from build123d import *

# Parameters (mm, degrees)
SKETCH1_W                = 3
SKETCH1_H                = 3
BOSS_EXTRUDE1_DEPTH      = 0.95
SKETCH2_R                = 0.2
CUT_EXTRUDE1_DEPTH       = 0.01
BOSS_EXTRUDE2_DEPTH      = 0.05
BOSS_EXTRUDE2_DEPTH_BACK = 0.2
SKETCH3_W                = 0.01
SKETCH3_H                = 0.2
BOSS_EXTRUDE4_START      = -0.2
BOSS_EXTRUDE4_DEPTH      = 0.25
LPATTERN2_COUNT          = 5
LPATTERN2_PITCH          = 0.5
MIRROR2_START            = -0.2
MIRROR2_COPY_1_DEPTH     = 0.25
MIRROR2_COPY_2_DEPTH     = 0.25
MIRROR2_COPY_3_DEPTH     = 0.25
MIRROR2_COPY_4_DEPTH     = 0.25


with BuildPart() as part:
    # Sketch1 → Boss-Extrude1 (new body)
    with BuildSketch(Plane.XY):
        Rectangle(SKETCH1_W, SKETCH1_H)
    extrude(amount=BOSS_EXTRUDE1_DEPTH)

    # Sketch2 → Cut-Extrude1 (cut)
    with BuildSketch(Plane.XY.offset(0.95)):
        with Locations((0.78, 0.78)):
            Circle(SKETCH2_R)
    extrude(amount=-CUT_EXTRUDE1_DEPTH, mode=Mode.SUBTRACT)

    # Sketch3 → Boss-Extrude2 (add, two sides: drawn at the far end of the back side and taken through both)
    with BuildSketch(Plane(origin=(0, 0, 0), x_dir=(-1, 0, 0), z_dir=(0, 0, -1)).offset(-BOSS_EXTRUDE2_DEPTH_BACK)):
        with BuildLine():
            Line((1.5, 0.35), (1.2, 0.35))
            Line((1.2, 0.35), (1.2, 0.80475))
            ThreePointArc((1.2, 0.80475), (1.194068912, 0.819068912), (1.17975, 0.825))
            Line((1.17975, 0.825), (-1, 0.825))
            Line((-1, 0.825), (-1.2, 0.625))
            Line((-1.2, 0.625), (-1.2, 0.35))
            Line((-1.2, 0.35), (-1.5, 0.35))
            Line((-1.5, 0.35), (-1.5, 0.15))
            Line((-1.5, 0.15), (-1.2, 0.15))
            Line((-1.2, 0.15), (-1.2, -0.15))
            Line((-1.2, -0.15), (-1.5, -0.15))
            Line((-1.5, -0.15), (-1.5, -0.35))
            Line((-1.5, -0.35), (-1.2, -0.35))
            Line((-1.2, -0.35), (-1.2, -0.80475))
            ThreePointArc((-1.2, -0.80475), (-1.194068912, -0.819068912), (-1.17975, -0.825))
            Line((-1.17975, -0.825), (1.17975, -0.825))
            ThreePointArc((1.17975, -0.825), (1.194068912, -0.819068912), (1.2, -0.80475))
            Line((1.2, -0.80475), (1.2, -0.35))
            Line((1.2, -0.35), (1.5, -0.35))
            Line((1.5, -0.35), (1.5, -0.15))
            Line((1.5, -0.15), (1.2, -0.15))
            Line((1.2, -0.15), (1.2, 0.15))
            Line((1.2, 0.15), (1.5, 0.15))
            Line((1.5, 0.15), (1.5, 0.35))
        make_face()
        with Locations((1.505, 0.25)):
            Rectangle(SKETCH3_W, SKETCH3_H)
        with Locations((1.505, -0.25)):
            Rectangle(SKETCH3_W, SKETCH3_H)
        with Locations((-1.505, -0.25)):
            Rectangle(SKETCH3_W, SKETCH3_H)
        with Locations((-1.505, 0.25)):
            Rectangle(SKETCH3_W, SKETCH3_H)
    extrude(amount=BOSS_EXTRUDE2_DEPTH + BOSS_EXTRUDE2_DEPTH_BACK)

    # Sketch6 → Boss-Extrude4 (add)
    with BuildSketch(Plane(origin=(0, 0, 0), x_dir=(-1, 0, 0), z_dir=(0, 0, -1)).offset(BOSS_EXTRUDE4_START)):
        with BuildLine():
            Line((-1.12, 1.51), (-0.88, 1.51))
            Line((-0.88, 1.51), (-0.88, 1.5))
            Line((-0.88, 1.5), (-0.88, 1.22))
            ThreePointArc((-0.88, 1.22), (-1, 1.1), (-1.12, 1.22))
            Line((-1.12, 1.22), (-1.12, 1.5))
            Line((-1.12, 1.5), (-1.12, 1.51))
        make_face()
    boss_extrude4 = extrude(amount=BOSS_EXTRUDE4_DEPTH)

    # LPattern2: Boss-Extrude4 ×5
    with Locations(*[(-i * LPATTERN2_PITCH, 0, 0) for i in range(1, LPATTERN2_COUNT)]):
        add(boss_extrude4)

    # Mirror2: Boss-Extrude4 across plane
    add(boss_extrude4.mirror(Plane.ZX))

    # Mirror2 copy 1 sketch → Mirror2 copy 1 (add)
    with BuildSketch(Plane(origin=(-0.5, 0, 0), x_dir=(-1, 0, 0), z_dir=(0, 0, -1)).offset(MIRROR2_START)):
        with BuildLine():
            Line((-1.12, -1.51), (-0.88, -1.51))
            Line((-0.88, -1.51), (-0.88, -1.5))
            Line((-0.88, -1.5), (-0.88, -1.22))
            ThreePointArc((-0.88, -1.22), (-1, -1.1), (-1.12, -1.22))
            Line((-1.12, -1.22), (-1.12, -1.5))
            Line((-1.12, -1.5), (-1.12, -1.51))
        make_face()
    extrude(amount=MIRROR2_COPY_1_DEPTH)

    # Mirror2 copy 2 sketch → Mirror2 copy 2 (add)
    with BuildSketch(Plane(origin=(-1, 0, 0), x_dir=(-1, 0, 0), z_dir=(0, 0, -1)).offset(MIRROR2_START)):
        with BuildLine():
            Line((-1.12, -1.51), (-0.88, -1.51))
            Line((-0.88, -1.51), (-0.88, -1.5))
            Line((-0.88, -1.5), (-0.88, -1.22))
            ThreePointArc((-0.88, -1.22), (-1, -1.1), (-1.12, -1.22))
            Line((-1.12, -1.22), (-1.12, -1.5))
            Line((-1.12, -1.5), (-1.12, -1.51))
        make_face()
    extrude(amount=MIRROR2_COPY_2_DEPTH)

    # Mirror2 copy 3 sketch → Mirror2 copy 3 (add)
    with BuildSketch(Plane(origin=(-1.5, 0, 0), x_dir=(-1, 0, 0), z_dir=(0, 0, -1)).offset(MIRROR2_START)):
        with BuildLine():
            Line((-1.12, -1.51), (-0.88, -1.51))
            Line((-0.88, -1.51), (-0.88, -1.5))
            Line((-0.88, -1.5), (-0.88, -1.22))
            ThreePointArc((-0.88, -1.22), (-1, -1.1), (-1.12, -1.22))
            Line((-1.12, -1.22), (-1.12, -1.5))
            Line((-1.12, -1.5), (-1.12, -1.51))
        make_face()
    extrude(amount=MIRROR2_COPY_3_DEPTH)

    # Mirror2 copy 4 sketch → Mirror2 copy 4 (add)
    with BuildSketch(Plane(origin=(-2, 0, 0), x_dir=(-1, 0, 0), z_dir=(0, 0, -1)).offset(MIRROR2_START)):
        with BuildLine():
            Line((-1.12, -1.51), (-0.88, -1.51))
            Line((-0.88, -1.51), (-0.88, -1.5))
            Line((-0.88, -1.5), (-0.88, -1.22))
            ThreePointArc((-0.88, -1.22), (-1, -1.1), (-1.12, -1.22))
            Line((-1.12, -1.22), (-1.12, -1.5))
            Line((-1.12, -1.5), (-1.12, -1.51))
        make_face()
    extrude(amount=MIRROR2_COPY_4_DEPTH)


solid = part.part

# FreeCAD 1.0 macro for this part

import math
import FreeCAD as App
import Part
import Sketcher
from FreeCAD import Vector
Q = App.Units.Quantity


def add_polygon(sketch, points):
    """Adds a closed chain of lines whose ends are joined by coincident constraints."""
    first, n = sketch.GeometryCount, len(points)
    for a, b in zip(points, points[1:] + points[:1]):
        sketch.addGeometry(Part.LineSegment(App.Vector(*a, 0), App.Vector(*b, 0)), False)
    for i in range(n):
        sketch.addConstraint(Sketcher.Constraint("Coincident", first + i, 2, first + (i + 1) % n, 1))

doc = App.newDocument("Part")
body = doc.addObject("PartDesign::Body", "Body")

# Sketch on XY plane
sketch1 = doc.addObject("Sketcher::SketchObject", "Sketch")
body.addObject(sketch1)
sketch1.AttachmentSupport = (doc.XY_Plane, [""])
sketch1.MapMode = "FlatFace"
add_polygon(sketch1, [(-1.5, 1.5), (-1.5, -1.5), (1.5, -1.5), (1.5, 1.5)])  # lines 0-3
sketch1.addConstraint([
    Sketcher.Constraint("Vertical", 0),
    Sketcher.Constraint("Horizontal", 1),
    Sketcher.Constraint("Vertical", 2),
    Sketcher.Constraint("Horizontal", 3),
    Sketcher.Constraint("Symmetric", 0, 2, 2, 2, -1, 1),
    Sketcher.Constraint("Equal", 3, 0),
    Sketcher.Constraint("DistanceX", 1, 1, 1, 2, Q("3 mm")),
])
pad1 = doc.addObject("PartDesign::Pad", "Pad")
body.addObject(pad1)
pad1.Profile = sketch1
pad1.Length = 0.95

# Sketch on XY plane
sketch2 = doc.addObject("Sketcher::SketchObject", "Sketch001")
body.addObject(sketch2)
sketch2.AttachmentSupport = (doc.XY_Plane, [""])
sketch2.MapMode = "FlatFace"
sketch2.AttachmentOffset = App.Placement(Vector(0, 0, 0.95), App.Rotation())
sketch2.addGeometry(Part.Circle(Vector(0.78, 0.78, 0), Vector(0, 0, 1), 0.2), False)
sketch2.addConstraint([
    Sketcher.Constraint("Diameter", 0, Q("0.4 mm")),
    Sketcher.Constraint("DistanceX", -1, 1, 0, 3, Q("0.78 mm")),
    Sketcher.Constraint("DistanceY", -1, 1, 0, 3, Q("0.78 mm")),
])
pocket1 = doc.addObject("PartDesign::Pocket", "Pocket")
body.addObject(pocket1)
pocket1.Profile = sketch2
pocket1.Length = 0.01

# Sketch on XY plane
sketch3 = doc.addObject("Sketcher::SketchObject", "Sketch002")
body.addObject(sketch3)
sketch3.AttachmentSupport = (doc.XY_Plane, [""])
sketch3.MapMode = "FlatFace"
sketch3.addGeometry([
    Part.LineSegment(Vector(-1.2, 0.35, 0), Vector(-1.2, 0.805, 0)),  # 0
    Part.ArcOfCircle(Part.Circle(Vector(-1.18, 0.805, 0), Vector(0, 0, 1), 0.02), math.radians(90), math.radians(180)),  # 1
    Part.LineSegment(Vector(-1.18, 0.825, 0), Vector(1, 0.825, 0)),  # 2
    Part.LineSegment(Vector(1, 0.825, 0), Vector(1.2, 0.625, 0)),  # 3
    Part.LineSegment(Vector(1.2, 0.625, 0), Vector(1.2, 0.35, 0)),  # 4
    Part.LineSegment(Vector(1.2, 0.35, 0), Vector(1.51, 0.35, 0)),  # 5
    Part.LineSegment(Vector(1.51, 0.35, 0), Vector(1.51, 0.15, 0)),  # 6
    Part.LineSegment(Vector(1.51, 0.15, 0), Vector(1.2, 0.15, 0)),  # 7
    Part.LineSegment(Vector(1.2, 0.15, 0), Vector(1.2, -0.15, 0)),  # 8
    Part.LineSegment(Vector(1.2, -0.15, 0), Vector(1.51, -0.15, 0)),  # 9
    Part.LineSegment(Vector(1.51, -0.15, 0), Vector(1.51, -0.35, 0)),  # 10
    Part.LineSegment(Vector(1.51, -0.35, 0), Vector(1.2, -0.35, 0)),  # 11
    Part.LineSegment(Vector(1.2, -0.35, 0), Vector(1.2, -0.805, 0)),  # 12
    Part.ArcOfCircle(Part.Circle(Vector(1.18, -0.805, 0), Vector(0, 0, 1), 0.02), math.radians(-90), math.radians(0)),  # 13
    Part.LineSegment(Vector(1.18, -0.825, 0), Vector(-1.18, -0.825, 0)),  # 14
    Part.ArcOfCircle(Part.Circle(Vector(-1.18, -0.805, 0), Vector(0, 0, 1), 0.02), math.radians(-180), math.radians(-90)),  # 15
    Part.LineSegment(Vector(-1.2, -0.805, 0), Vector(-1.2, -0.35, 0)),  # 16
    Part.LineSegment(Vector(-1.2, -0.35, 0), Vector(-1.51, -0.35, 0)),  # 17
    Part.LineSegment(Vector(-1.51, -0.35, 0), Vector(-1.51, -0.15, 0)),  # 18
    Part.LineSegment(Vector(-1.51, -0.15, 0), Vector(-1.2, -0.15, 0)),  # 19
    Part.LineSegment(Vector(-1.2, -0.15, 0), Vector(-1.2, 0.15, 0)),  # 20
    Part.LineSegment(Vector(-1.2, 0.15, 0), Vector(-1.51, 0.15, 0)),  # 21
    Part.LineSegment(Vector(-1.51, 0.15, 0), Vector(-1.51, 0.35, 0)),  # 22
    Part.LineSegment(Vector(-1.51, 0.35, 0), Vector(-1.2, 0.35, 0)),  # 23
], False)
sketch3.addConstraint([
    Sketcher.Constraint("Tangent", 0, 2, 1, 2),
    Sketcher.Constraint("Tangent", 1, 1, 2, 1),
    Sketcher.Constraint("Coincident", 2, 2, 3, 1),
    Sketcher.Constraint("Coincident", 3, 2, 4, 1),
    Sketcher.Constraint("Coincident", 4, 2, 5, 1),
    Sketcher.Constraint("Coincident", 5, 2, 6, 1),
    Sketcher.Constraint("Coincident", 6, 2, 7, 1),
    Sketcher.Constraint("Coincident", 7, 2, 8, 1),
    Sketcher.Constraint("Coincident", 8, 2, 9, 1),
    Sketcher.Constraint("Coincident", 9, 2, 10, 1),
    Sketcher.Constraint("Coincident", 10, 2, 11, 1),
    Sketcher.Constraint("Coincident", 11, 2, 12, 1),
    Sketcher.Constraint("Tangent", 12, 2, 13, 2),
    Sketcher.Constraint("Tangent", 13, 1, 14, 1),
    Sketcher.Constraint("Tangent", 14, 2, 15, 2),
    Sketcher.Constraint("Tangent", 15, 1, 16, 1),
    Sketcher.Constraint("Coincident", 16, 2, 17, 1),
    Sketcher.Constraint("Coincident", 17, 2, 18, 1),
    Sketcher.Constraint("Coincident", 18, 2, 19, 1),
    Sketcher.Constraint("Coincident", 19, 2, 20, 1),
    Sketcher.Constraint("Coincident", 20, 2, 21, 1),
    Sketcher.Constraint("Coincident", 21, 2, 22, 1),
    Sketcher.Constraint("Coincident", 22, 2, 23, 1),
    Sketcher.Constraint("Coincident", 23, 2, 0, 1),
    Sketcher.Constraint("Vertical", 0),
    Sketcher.Constraint("Horizontal", 2),
    Sketcher.Constraint("Vertical", 4),
    Sketcher.Constraint("Horizontal", 5),
    Sketcher.Constraint("Vertical", 6),
    Sketcher.Constraint("Horizontal", 7),
    Sketcher.Constraint("Vertical", 8),
    Sketcher.Constraint("Horizontal", 9),
    Sketcher.Constraint("Vertical", 10),
    Sketcher.Constraint("Horizontal", 11),
    Sketcher.Constraint("Vertical", 12),
    Sketcher.Constraint("Horizontal", 14),
    Sketcher.Constraint("Vertical", 16),
    Sketcher.Constraint("Horizontal", 17),
    Sketcher.Constraint("Vertical", 18),
    Sketcher.Constraint("Horizontal", 19),
    Sketcher.Constraint("Vertical", 20),
    Sketcher.Constraint("Horizontal", 21),
    Sketcher.Constraint("Vertical", 22),
    Sketcher.Constraint("Horizontal", 23),
    Sketcher.Constraint("Equal", 1, 13),
    Sketcher.Constraint("Equal", 13, 15),
    Sketcher.Constraint("Symmetric", 1, 3, 13, 3, -1, 1),
    Sketcher.Constraint("Symmetric", 4, 2, 16, 2, -1, 1),
    Sketcher.Constraint("Symmetric", 6, 2, 18, 2, -1, 1),
    Sketcher.Constraint("Symmetric", 8, 2, 20, 2, -1, 1),
    Sketcher.Constraint("Symmetric", 10, 2, 22, 2, -1, 1),
    Sketcher.Constraint("Symmetric", 11, 2, 16, 2, -2),
    Sketcher.Constraint("Symmetric", 9, 2, 18, 2, -2),
    Sketcher.Constraint("Vertical", 4, 2, 7, 2),
    Sketcher.Constraint("Angle", 3, Q("-45 deg")),
    Sketcher.Constraint("DistanceY", 6, 2, 6, 1, Q("0.2 mm")),
    Sketcher.Constraint("DistanceY", 8, 2, 8, 1, Q("0.3 mm")),
    Sketcher.Constraint("DistanceX", -1, 1, 2, 2, Q("1 mm")),
    Sketcher.Constraint("DistanceX", 5, 1, 5, 2, Q("0.31 mm")),
    Sketcher.Constraint("DistanceX", 0, 2, -1, 1, Q("1.2 mm")),
    Sketcher.Constraint("DistanceY", 4, 2, 4, 1, Q("0.275 mm")),
    Sketcher.Constraint("Radius", 1, Q("0.02025 mm")),
])
pad2 = doc.addObject("PartDesign::Pad", "Pad001")
body.addObject(pad2)
pad2.Profile = sketch3
pad2.Type = "TwoLengths"
pad2.Length = 0.05
pad2.Length2 = 0.2
pad2.Reversed = True

# Sketch on XY plane
sketch4 = doc.addObject("Sketcher::SketchObject", "Sketch003")
body.addObject(sketch4)
sketch4.AttachmentSupport = (doc.XY_Plane, [""])
sketch4.MapMode = "FlatFace"
sketch4.AttachmentOffset = App.Placement(Vector(0, 0, 0.2), App.Rotation())
sketch4.addGeometry([
    Part.LineSegment(Vector(0.88, 1.51, 0), Vector(1.12, 1.51, 0)),
    Part.LineSegment(Vector(1.12, 1.51, 0), Vector(1.12, 1.22, 0)),
    Part.ArcOfCircle(Part.Circle(Vector(1, 1.22, 0), Vector(0, 0, 1), 0.12), math.radians(180), math.radians(360)),
    Part.LineSegment(Vector(0.88, 1.22, 0), Vector(0.88, 1.51, 0)),
], False)
sketch4.addConstraint([
    Sketcher.Constraint("Coincident", 0, 2, 1, 1),
    Sketcher.Constraint("Tangent", 1, 2, 2, 2),
    Sketcher.Constraint("Tangent", 2, 1, 3, 1),
    Sketcher.Constraint("Coincident", 3, 2, 0, 1),
    Sketcher.Constraint("Horizontal", 0),
    Sketcher.Constraint("Vertical", 1),
    Sketcher.Constraint("Vertical", 3),
    Sketcher.Constraint("Radius", 2, Q("0.12 mm")),
    Sketcher.Constraint("DistanceX", -1, 1, 2, 3, Q("1 mm")),
    Sketcher.Constraint("DistanceY", 1, 2, 1, 1, Q("0.29 mm")),
    Sketcher.Constraint("DistanceY", -1, 1, 2, 3, Q("1.22 mm")),
])
pad3 = doc.addObject("PartDesign::Pad", "Pad002")
body.addObject(pad3)
pad3.Profile = sketch4
pad3.Length = 0.25
pad3.Reversed = True
doc.recompute()

linearpattern = doc.addObject("PartDesign::LinearPattern", "LinearPattern")
body.addObject(linearpattern)
linearpattern.Originals = [pad3]
linearpattern.Direction = (doc.X_Axis, [""])
linearpattern.Mode = "offset"
linearpattern.Offset = 0.5
linearpattern.Occurrences = 5
linearpattern.Reversed = True
body.Tip = linearpattern
doc.recompute()

mirrored = doc.addObject("PartDesign::Mirrored", "Mirrored")
body.addObject(mirrored)
mirrored.Originals = [pad3]
mirrored.MirrorPlane = (doc.XZ_Plane, [""])
body.Tip = mirrored

# Sketch on XY plane
sketch5 = doc.addObject("Sketcher::SketchObject", "Sketch004")
body.addObject(sketch5)
sketch5.AttachmentSupport = (doc.XY_Plane, [""])
sketch5.MapMode = "FlatFace"
sketch5.AttachmentOffset = App.Placement(Vector(0, 0, 0.2), App.Rotation())
sketch5.addGeometry([
    Part.LineSegment(Vector(0.62, -1.51, 0), Vector(0.38, -1.51, 0)),
    Part.LineSegment(Vector(0.38, -1.51, 0), Vector(0.38, -1.22, 0)),
    Part.ArcOfCircle(Part.Circle(Vector(0.5, -1.22, 0), Vector(0, 0, 1), 0.12), math.radians(0), math.radians(180)),
    Part.LineSegment(Vector(0.62, -1.22, 0), Vector(0.62, -1.51, 0)),
], False)
sketch5.addConstraint([
    Sketcher.Constraint("Coincident", 0, 2, 1, 1),
    Sketcher.Constraint("Tangent", 1, 2, 2, 2),
    Sketcher.Constraint("Tangent", 2, 1, 3, 1),
    Sketcher.Constraint("Coincident", 3, 2, 0, 1),
    Sketcher.Constraint("Horizontal", 0),
    Sketcher.Constraint("Vertical", 1),
    Sketcher.Constraint("Vertical", 3),
    Sketcher.Constraint("Radius", 2, Q("0.12 mm")),
    Sketcher.Constraint("DistanceY", 1, 1, 1, 2, Q("0.29 mm")),
    Sketcher.Constraint("DistanceX", -1, 1, 2, 3, Q("0.5 mm")),
    Sketcher.Constraint("DistanceY", 2, 3, -1, 1, Q("1.22 mm")),
])
pad4 = doc.addObject("PartDesign::Pad", "Pad003")
body.addObject(pad4)
pad4.Profile = sketch5
pad4.Length = 0.25
pad4.Reversed = True

# Sketch on XY plane
sketch6 = doc.addObject("Sketcher::SketchObject", "Sketch005")
body.addObject(sketch6)
sketch6.AttachmentSupport = (doc.XY_Plane, [""])
sketch6.MapMode = "FlatFace"
sketch6.AttachmentOffset = App.Placement(Vector(0, 0, 0.2), App.Rotation())
sketch6.addGeometry([
    Part.LineSegment(Vector(0.12, -1.51, 0), Vector(-0.12, -1.51, 0)),
    Part.LineSegment(Vector(-0.12, -1.51, 0), Vector(-0.12, -1.22, 0)),
    Part.ArcOfCircle(Part.Circle(Vector(0, -1.22, 0), Vector(0, 0, 1), 0.12), math.radians(0), math.radians(180)),
    Part.LineSegment(Vector(0.12, -1.22, 0), Vector(0.12, -1.51, 0)),
], False)
sketch6.addConstraint([
    Sketcher.Constraint("Coincident", 0, 2, 1, 1),
    Sketcher.Constraint("Tangent", 1, 2, 2, 2),
    Sketcher.Constraint("Tangent", 2, 1, 3, 1),
    Sketcher.Constraint("Coincident", 3, 2, 0, 1),
    Sketcher.Constraint("Horizontal", 0),
    Sketcher.Constraint("Vertical", 1),
    Sketcher.Constraint("Vertical", 3),
    Sketcher.Constraint("PointOnObject", 2, 3, -2),
    Sketcher.Constraint("Radius", 2, Q("0.12 mm")),
    Sketcher.Constraint("DistanceY", 1, 1, 1, 2, Q("0.29 mm")),
    Sketcher.Constraint("DistanceY", 2, 3, -1, 1, Q("1.22 mm")),
])
pad5 = doc.addObject("PartDesign::Pad", "Pad004")
body.addObject(pad5)
pad5.Profile = sketch6
pad5.Length = 0.25
pad5.Reversed = True

# Sketch on XY plane
sketch7 = doc.addObject("Sketcher::SketchObject", "Sketch006")
body.addObject(sketch7)
sketch7.AttachmentSupport = (doc.XY_Plane, [""])
sketch7.MapMode = "FlatFace"
sketch7.AttachmentOffset = App.Placement(Vector(0, 0, 0.2), App.Rotation())
sketch7.addGeometry([
    Part.LineSegment(Vector(-0.38, -1.51, 0), Vector(-0.62, -1.51, 0)),
    Part.LineSegment(Vector(-0.62, -1.51, 0), Vector(-0.62, -1.22, 0)),
    Part.ArcOfCircle(Part.Circle(Vector(-0.5, -1.22, 0), Vector(0, 0, 1), 0.12), math.radians(0), math.radians(180)),
    Part.LineSegment(Vector(-0.38, -1.22, 0), Vector(-0.38, -1.51, 0)),
], False)
sketch7.addConstraint([
    Sketcher.Constraint("Coincident", 0, 2, 1, 1),
    Sketcher.Constraint("Tangent", 1, 2, 2, 2),
    Sketcher.Constraint("Tangent", 2, 1, 3, 1),
    Sketcher.Constraint("Coincident", 3, 2, 0, 1),
    Sketcher.Constraint("Horizontal", 0),
    Sketcher.Constraint("Vertical", 1),
    Sketcher.Constraint("Vertical", 3),
    Sketcher.Constraint("Radius", 2, Q("0.12 mm")),
    Sketcher.Constraint("DistanceY", 1, 1, 1, 2, Q("0.29 mm")),
    Sketcher.Constraint("DistanceX", 2, 3, -1, 1, Q("0.5 mm")),
    Sketcher.Constraint("DistanceY", 2, 3, -1, 1, Q("1.22 mm")),
])
pad6 = doc.addObject("PartDesign::Pad", "Pad005")
body.addObject(pad6)
pad6.Profile = sketch7
pad6.Length = 0.25
pad6.Reversed = True

# Sketch on XY plane
sketch8 = doc.addObject("Sketcher::SketchObject", "Sketch007")
body.addObject(sketch8)
sketch8.AttachmentSupport = (doc.XY_Plane, [""])
sketch8.MapMode = "FlatFace"
sketch8.AttachmentOffset = App.Placement(Vector(0, 0, 0.2), App.Rotation())
sketch8.addGeometry([
    Part.LineSegment(Vector(-0.88, -1.51, 0), Vector(-1.12, -1.51, 0)),
    Part.LineSegment(Vector(-1.12, -1.51, 0), Vector(-1.12, -1.22, 0)),
    Part.ArcOfCircle(Part.Circle(Vector(-1, -1.22, 0), Vector(0, 0, 1), 0.12), math.radians(0), math.radians(180)),
    Part.LineSegment(Vector(-0.88, -1.22, 0), Vector(-0.88, -1.51, 0)),
], False)
sketch8.addConstraint([
    Sketcher.Constraint("Coincident", 0, 2, 1, 1),
    Sketcher.Constraint("Tangent", 1, 2, 2, 2),
    Sketcher.Constraint("Tangent", 2, 1, 3, 1),
    Sketcher.Constraint("Coincident", 3, 2, 0, 1),
    Sketcher.Constraint("Horizontal", 0),
    Sketcher.Constraint("Vertical", 1),
    Sketcher.Constraint("Vertical", 3),
    Sketcher.Constraint("Radius", 2, Q("0.12 mm")),
    Sketcher.Constraint("DistanceX", 2, 3, -1, 1, Q("1 mm")),
    Sketcher.Constraint("DistanceY", 1, 1, 1, 2, Q("0.29 mm")),
    Sketcher.Constraint("DistanceY", 2, 3, -1, 1, Q("1.22 mm")),
])
pad7 = doc.addObject("PartDesign::Pad", "Pad006")
body.addObject(pad7)
pad7.Profile = sketch8
pad7.Length = 0.25
pad7.Reversed = True

doc.recompute()
